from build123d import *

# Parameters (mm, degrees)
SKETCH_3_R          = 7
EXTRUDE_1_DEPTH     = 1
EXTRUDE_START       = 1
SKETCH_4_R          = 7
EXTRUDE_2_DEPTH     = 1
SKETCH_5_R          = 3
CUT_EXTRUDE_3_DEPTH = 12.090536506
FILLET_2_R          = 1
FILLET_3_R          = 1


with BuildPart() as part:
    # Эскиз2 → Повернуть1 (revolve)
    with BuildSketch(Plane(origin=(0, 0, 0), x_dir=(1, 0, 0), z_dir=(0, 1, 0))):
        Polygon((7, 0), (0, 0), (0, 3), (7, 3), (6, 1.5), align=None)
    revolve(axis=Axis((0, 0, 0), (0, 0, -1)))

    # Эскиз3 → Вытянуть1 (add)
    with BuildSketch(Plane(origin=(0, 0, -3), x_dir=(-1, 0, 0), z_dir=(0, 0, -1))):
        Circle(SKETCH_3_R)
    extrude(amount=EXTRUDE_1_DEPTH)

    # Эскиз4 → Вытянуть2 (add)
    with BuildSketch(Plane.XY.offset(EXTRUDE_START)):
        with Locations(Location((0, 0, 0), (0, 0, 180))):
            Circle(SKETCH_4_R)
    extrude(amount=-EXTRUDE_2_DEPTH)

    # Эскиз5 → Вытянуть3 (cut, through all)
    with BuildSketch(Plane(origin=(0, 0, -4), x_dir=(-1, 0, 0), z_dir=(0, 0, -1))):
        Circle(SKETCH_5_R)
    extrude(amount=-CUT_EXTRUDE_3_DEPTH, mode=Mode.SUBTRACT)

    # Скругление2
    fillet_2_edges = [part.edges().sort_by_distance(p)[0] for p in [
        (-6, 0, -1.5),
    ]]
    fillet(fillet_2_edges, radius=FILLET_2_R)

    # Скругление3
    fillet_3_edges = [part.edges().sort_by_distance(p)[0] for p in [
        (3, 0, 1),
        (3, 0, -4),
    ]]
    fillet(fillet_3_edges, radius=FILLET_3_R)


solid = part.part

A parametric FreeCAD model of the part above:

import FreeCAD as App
import Part
import Sketcher


def edges_at(feature, points):
    """Names of the edges that pass closest to the given points."""
    edges = feature.Shape.Edges
    near = lambda p: min(range(len(edges)), key=lambda i: edges[i].distToShape(Part.Vertex(*p))[0])
    return sorted({f"Edge{near(p) + 1}" for p in points})

doc = App.newDocument("Part")
body = doc.addObject("PartDesign::Body", "Body")

# Sketch on XZ plane
sketch1 = body.newObject("Sketcher::SketchObject", "Sketch")
sketch1.AttachmentSupport = (doc.getObject("XZ_Plane"), [""])
sketch1.MapMode = "FlatFace"
sketch1.addGeometry(Part.LineSegment(App.Vector(0, 0, 0), App.Vector(7, 0, 0)), False)
sketch1.addGeometry(Part.LineSegment(App.Vector(7, 0, 0), App.Vector(6, -1.5, 0)), False)
sketch1.addGeometry(Part.LineSegment(App.Vector(6, -1.5, 0), App.Vector(7, -3, 0)), False)
sketch1.addGeometry(Part.LineSegment(App.Vector(7, -3, 0), App.Vector(0, -3, 0)), False)
sketch1.addGeometry(Part.LineSegment(App.Vector(0, -3, 0), App.Vector(0, 0, 0)), False)
sketch1.addConstraint(Sketcher.Constraint("Coincident", 0, 2, 1, 1))
sketch1.addConstraint(Sketcher.Constraint("Coincident", 1, 2, 2, 1))
sketch1.addConstraint(Sketcher.Constraint("Coincident", 2, 2, 3, 1))
sketch1.addConstraint(Sketcher.Constraint("Coincident", 3, 2, 4, 1))
sketch1.addConstraint(Sketcher.Constraint("Coincident", 4, 2, 0, 1))
sketch1.addConstraint(Sketcher.Constraint("Horizontal", 0))
sketch1.addConstraint(Sketcher.Constraint("Horizontal", 3))
sketch1.addConstraint(Sketcher.Constraint("Vertical", 4))
sketch1.addConstraint(Sketcher.Constraint("Coincident", 4, 2, -1, 1))
sketch1.addConstraint(Sketcher.Constraint("Vertical", 0, 2, 2, 2))
sketch1.addConstraint(Sketcher.Constraint("Equal", 1, 2))
sketch1.addConstraint(Sketcher.Constraint("DistanceX", 0, 1, 0, 2, 7.0))
sketch1.addConstraint(Sketcher.Constraint("DistanceY", 4, 1, 4, 2, 3.0))
sketch1.addConstraint(Sketcher.Constraint("DistanceX", -1, 1, 1, 2, 6.0))
revolution = body.newObject("PartDesign::Revolution", "Revolution")
revolution.Profile = sketch1
revolution.ReferenceAxis = (sketch1, ["V_Axis"])
revolution.Angle = 360

# Sketch on XY plane
sketch2 = body.newObject("Sketcher::SketchObject", "Sketch001")
sketch2.AttachmentSupport = (doc.getObject("XY_Plane"), [""])
sketch2.MapMode = "FlatFace"
sketch2.AttachmentOffset = App.Placement(App.Vector(0, 0, -3), App.Rotation())
sketch2.addGeometry(Part.Circle(App.Vector(0, 0, 0), App.Vector(0, 0, 1), 7), False)
sketch2.addConstraint(Sketcher.Constraint("Coincident", 0, 3, -1, 1))
sketch2.addConstraint(Sketcher.Constraint("Diameter", 0, 14.0))
pad1 = body.newObject("PartDesign::Pad", "Pad")
pad1.Profile = sketch2
pad1.Length = 1
pad1.Reversed = True

# Sketch on XY plane
sketch3 = body.newObject("Sketcher::SketchObject", "Sketch002")
sketch3.AttachmentSupport = (doc.getObject("XY_Plane"), [""])
sketch3.MapMode = "FlatFace"
sketch3.AttachmentOffset = App.Placement(App.Vector(0, 0, 1), App.Rotation())
sketch3.addGeometry(Part.Circle(App.Vector(0, 0, 0), App.Vector(0, 0, 1), 7), False)
sketch3.addConstraint(Sketcher.Constraint("Coincident", 0, 3, -1, 1))
sketch3.addConstraint(Sketcher.Constraint("Diameter", 0, 14.0))
pad2 = body.newObject("PartDesign::Pad", "Pad001")
pad2.Profile = sketch3
pad2.Length = 1
pad2.Reversed = True

# Sketch on XY plane
sketch4 = body.newObject("Sketcher::SketchObject", "Sketch003")
sketch4.AttachmentSupport = (doc.getObject("XY_Plane"), [""])
sketch4.MapMode = "FlatFace"
sketch4.AttachmentOffset = App.Placement(App.Vector(0, 0, -4), App.Rotation())
sketch4.addGeometry(Part.Circle(App.Vector(0, 0, 0), App.Vector(0, 0, 1), 3), False)
sketch4.addConstraint(Sketcher.Constraint("Coincident", 0, 3, -1, 1))
sketch4.addConstraint(Sketcher.Constraint("Diameter", 0, 6.0))
pocket1 = body.newObject("PartDesign::Pocket", "Pocket")
pocket1.Profile = sketch4
pocket1.Type = "ThroughAll"
pocket1.Reversed = True
doc.recompute()

fillet = body.newObject("PartDesign::Fillet", "Fillet")
fillet.Base = (pocket1, edges_at(pocket1, [(-6, 0, -1.5)]))
fillet.Radius = 1
doc.recompute()

fillet2 = body.newObject("PartDesign::Fillet", "Fillet001")
fillet2.Base = (fillet, edges_at(fillet, [(3, 0, 1), (3, 0, -4)]))
fillet2.Radius = 1

doc.recompute()
